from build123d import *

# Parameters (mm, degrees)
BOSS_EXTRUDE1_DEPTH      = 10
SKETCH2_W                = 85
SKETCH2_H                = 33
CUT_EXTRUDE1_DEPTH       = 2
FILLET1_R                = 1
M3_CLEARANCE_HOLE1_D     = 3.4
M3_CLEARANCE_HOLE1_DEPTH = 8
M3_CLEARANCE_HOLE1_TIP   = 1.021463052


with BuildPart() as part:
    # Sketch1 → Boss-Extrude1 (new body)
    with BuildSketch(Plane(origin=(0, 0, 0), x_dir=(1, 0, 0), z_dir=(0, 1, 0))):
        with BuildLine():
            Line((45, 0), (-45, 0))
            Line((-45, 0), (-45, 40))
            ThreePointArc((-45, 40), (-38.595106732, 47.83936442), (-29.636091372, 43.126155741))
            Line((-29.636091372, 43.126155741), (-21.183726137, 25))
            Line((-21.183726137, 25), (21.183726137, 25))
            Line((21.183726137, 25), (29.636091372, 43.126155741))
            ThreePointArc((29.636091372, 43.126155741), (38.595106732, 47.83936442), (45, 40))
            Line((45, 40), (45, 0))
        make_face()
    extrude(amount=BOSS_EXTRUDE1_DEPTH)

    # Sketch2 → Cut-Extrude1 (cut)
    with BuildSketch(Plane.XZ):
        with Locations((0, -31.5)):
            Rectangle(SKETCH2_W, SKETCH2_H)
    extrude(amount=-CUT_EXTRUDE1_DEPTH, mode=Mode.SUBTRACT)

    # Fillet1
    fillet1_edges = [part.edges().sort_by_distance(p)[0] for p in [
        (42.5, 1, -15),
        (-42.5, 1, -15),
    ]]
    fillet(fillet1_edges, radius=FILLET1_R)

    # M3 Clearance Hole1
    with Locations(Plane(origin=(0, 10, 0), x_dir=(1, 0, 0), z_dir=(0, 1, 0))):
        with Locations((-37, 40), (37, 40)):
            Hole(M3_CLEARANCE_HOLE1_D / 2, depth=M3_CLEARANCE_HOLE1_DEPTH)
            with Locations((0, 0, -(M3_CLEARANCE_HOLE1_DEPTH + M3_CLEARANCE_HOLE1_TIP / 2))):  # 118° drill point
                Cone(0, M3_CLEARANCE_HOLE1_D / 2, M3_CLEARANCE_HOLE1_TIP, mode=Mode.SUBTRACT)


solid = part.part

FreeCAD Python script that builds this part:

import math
import FreeCAD as App
import Part
import Sketcher
Q = App.Units.Quantity


def edges_at(feature, points):
    """Names of the edges that pass closest to the given points."""
    edges = feature.Shape.Edges
    near = lambda p: min(range(len(edges)), key=lambda i: edges[i].distToShape(Part.Vertex(*p))[0])
    return sorted({f"Edge{near(p) + 1}" for p in points})


def add_polygon(sketch, points):
    """Adds a closed chain of lines whose ends are joined by coincident constraints."""
    first, n = sketch.GeometryCount, len(points)
    for a, b in zip(points, points[1:] + points[:1]):
        sketch.addGeometry(Part.LineSegment(App.Vector(*a, 0), App.Vector(*b, 0)), False)
    for i in range(n):
        sketch.addConstraint(Sketcher.Constraint("Coincident", first + i, 2, first + (i + 1) % n, 1))

doc = App.newDocument("Part")
body = doc.addObject("PartDesign::Body", "Body")

sketch1 = doc.addObject("Sketcher::SketchObject", "Sketch")
body.addObject(sketch1)
sketch1.AttachmentSupport = (doc.XZ_Plane, [""])
sketch1.MapMode = "FlatFace"
sketch1.addGeometry([
    Part.LineSegment(App.Vector(-45, 0, 0), App.Vector(45, 0, 0)),
    Part.LineSegment(App.Vector(45, 0, 0), App.Vector(45, -40, 0)),
    Part.ArcOfCircle(Part.Circle(App.Vector(37, -40, 0), App.Vector(0, 0, 1), 8), math.radians(-156.997614), math.radians(0)),
    Part.LineSegment(App.Vector(29.636091, -43.126156, 0), App.Vector(21.183726, -25, 0)),
    Part.LineSegment(App.Vector(21.183726, -25, 0), App.Vector(-21.183726, -25, 0)),
    Part.LineSegment(App.Vector(-21.183726, -25, 0), App.Vector(-29.636091, -43.126156, 0)),
    Part.ArcOfCircle(Part.Circle(App.Vector(-37, -40, 0), App.Vector(0, 0, 1), 8), math.radians(180), math.radians(336.997614)),
    Part.LineSegment(App.Vector(-45, -40, 0), App.Vector(-45, 0, 0)),
], False)
sketch1.addConstraint([
    Sketcher.Constraint("Coincident", 0, 2, 1, 1),
    Sketcher.Constraint("Tangent", 1, 2, 2, 2),
    Sketcher.Constraint("Coincident", 2, 1, 3, 1),
    Sketcher.Constraint("Coincident", 3, 2, 4, 1),
    Sketcher.Constraint("Coincident", 4, 2, 5, 1),
    Sketcher.Constraint("Coincident", 5, 2, 6, 2),
    Sketcher.Constraint("Tangent", 6, 1, 7, 1),
    Sketcher.Constraint("Coincident", 7, 2, 0, 1),
    Sketcher.Constraint("Horizontal", 0),
    Sketcher.Constraint("Vertical", 1),
    Sketcher.Constraint("Horizontal", 4),
    Sketcher.Constraint("Vertical", 7),
    Sketcher.Constraint("Equal", 2, 6),
    Sketcher.Constraint("Symmetric", 0, 2, 7, 2, -1, 1),
    Sketcher.Constraint("Symmetric", 2, 1, 5, 2, -2),
    Sketcher.Constraint("Equal", 3, 5),
    Sketcher.Constraint("Radius", 2, Q("8 mm")),
    Sketcher.Constraint("DistanceX", 0, 1, 0, 2, Q("90 mm")),
    Sketcher.Constraint("DistanceY", 1, 2, 1, 1, Q("40 mm")),
    Sketcher.Constraint("Angle", 3, Q("115 deg")),
    Sketcher.Constraint("Distance", 3, Q("20 mm")),
    Sketcher.Constraint("DistanceY", 3, 2, -1, 1, Q("25 mm")),
])
pad1 = doc.addObject("PartDesign::Pad", "Pad")
body.addObject(pad1)
pad1.Profile = sketch1
pad1.Length = 10
pad1.Reversed = True

sketch2 = doc.addObject("Sketcher::SketchObject", "Sketch001")
body.addObject(sketch2)
sketch2.AttachmentSupport = (doc.XZ_Plane, [""])
sketch2.MapMode = "FlatFace"
add_polygon(sketch2, [(-42.5, -15), (-42.5, -48), (42.5, -48), (42.5, -15)])
sketch2.addConstraint([
    Sketcher.Constraint("Vertical", 0),
    Sketcher.Constraint("Horizontal", 1),
    Sketcher.Constraint("Vertical", 2),
    Sketcher.Constraint("Horizontal", 3),
    Sketcher.Constraint("DistanceX", 1, 1, 1, 2, Q("85 mm")),
    Sketcher.Constraint("DistanceY", 0, 2, 0, 1, Q("33 mm")),
    Sketcher.Constraint("DistanceY", 0, 2, -1, 1, Q("48 mm")),
    Sketcher.Constraint("DistanceX", 0, 2, -1, 1, Q("42.5 mm")),
])
pocket1 = doc.addObject("PartDesign::Pocket", "Pocket")
body.addObject(pocket1)
pocket1.Profile = sketch2
pocket1.Length = 2
doc.recompute()

fillet = doc.addObject("PartDesign::Fillet", "Fillet")
body.addObject(fillet)
fillet.Base = (pocket1, edges_at(pocket1, [(42.5, 1, -15), (-42.5, 1, -15)]))
fillet.Radius = 1

sketch3 = doc.addObject("Sketcher::SketchObject", "Sketch002")
body.addObject(sketch3)
sketch3.AttachmentSupport = (doc.XZ_Plane, [""])
sketch3.MapMode = "FlatFace"
sketch3.AttachmentOffset = App.Placement(App.Vector(0, 0, -10), App.Rotation())
sketch3.addGeometry([
    Part.Circle(App.Vector(-37, -40, 0), App.Vector(0, 0, 1), 1.7),
    Part.Circle(App.Vector(37, -40, 0), App.Vector(0, 0, 1), 1.7),
], False)
sketch3.addConstraint([
    Sketcher.Constraint("Equal", 0, 1),
    Sketcher.Constraint("Symmetric", 0, 3, 1, 3, -2),
    Sketcher.Constraint("Diameter", 0, Q("3.4 mm")),
    Sketcher.Constraint("DistanceX", 0, 3, -1, 1, Q("37 mm")),
    Sketcher.Constraint("DistanceY", 0, 3, -1, 1, Q("40 mm")),
])
doc.recompute()
hole = doc.addObject("PartDesign::Hole", "Hole")
body.addObject(hole)
hole.Profile = sketch3
hole.ThreadType = "None"
hole.Diameter = 3.4
hole.DepthType = "Dimension"
hole.Depth = 8
hole.DrillPoint = "Angled"
hole.DrillPointAngle = 118
hole.Reversed = True

doc.recompute()
